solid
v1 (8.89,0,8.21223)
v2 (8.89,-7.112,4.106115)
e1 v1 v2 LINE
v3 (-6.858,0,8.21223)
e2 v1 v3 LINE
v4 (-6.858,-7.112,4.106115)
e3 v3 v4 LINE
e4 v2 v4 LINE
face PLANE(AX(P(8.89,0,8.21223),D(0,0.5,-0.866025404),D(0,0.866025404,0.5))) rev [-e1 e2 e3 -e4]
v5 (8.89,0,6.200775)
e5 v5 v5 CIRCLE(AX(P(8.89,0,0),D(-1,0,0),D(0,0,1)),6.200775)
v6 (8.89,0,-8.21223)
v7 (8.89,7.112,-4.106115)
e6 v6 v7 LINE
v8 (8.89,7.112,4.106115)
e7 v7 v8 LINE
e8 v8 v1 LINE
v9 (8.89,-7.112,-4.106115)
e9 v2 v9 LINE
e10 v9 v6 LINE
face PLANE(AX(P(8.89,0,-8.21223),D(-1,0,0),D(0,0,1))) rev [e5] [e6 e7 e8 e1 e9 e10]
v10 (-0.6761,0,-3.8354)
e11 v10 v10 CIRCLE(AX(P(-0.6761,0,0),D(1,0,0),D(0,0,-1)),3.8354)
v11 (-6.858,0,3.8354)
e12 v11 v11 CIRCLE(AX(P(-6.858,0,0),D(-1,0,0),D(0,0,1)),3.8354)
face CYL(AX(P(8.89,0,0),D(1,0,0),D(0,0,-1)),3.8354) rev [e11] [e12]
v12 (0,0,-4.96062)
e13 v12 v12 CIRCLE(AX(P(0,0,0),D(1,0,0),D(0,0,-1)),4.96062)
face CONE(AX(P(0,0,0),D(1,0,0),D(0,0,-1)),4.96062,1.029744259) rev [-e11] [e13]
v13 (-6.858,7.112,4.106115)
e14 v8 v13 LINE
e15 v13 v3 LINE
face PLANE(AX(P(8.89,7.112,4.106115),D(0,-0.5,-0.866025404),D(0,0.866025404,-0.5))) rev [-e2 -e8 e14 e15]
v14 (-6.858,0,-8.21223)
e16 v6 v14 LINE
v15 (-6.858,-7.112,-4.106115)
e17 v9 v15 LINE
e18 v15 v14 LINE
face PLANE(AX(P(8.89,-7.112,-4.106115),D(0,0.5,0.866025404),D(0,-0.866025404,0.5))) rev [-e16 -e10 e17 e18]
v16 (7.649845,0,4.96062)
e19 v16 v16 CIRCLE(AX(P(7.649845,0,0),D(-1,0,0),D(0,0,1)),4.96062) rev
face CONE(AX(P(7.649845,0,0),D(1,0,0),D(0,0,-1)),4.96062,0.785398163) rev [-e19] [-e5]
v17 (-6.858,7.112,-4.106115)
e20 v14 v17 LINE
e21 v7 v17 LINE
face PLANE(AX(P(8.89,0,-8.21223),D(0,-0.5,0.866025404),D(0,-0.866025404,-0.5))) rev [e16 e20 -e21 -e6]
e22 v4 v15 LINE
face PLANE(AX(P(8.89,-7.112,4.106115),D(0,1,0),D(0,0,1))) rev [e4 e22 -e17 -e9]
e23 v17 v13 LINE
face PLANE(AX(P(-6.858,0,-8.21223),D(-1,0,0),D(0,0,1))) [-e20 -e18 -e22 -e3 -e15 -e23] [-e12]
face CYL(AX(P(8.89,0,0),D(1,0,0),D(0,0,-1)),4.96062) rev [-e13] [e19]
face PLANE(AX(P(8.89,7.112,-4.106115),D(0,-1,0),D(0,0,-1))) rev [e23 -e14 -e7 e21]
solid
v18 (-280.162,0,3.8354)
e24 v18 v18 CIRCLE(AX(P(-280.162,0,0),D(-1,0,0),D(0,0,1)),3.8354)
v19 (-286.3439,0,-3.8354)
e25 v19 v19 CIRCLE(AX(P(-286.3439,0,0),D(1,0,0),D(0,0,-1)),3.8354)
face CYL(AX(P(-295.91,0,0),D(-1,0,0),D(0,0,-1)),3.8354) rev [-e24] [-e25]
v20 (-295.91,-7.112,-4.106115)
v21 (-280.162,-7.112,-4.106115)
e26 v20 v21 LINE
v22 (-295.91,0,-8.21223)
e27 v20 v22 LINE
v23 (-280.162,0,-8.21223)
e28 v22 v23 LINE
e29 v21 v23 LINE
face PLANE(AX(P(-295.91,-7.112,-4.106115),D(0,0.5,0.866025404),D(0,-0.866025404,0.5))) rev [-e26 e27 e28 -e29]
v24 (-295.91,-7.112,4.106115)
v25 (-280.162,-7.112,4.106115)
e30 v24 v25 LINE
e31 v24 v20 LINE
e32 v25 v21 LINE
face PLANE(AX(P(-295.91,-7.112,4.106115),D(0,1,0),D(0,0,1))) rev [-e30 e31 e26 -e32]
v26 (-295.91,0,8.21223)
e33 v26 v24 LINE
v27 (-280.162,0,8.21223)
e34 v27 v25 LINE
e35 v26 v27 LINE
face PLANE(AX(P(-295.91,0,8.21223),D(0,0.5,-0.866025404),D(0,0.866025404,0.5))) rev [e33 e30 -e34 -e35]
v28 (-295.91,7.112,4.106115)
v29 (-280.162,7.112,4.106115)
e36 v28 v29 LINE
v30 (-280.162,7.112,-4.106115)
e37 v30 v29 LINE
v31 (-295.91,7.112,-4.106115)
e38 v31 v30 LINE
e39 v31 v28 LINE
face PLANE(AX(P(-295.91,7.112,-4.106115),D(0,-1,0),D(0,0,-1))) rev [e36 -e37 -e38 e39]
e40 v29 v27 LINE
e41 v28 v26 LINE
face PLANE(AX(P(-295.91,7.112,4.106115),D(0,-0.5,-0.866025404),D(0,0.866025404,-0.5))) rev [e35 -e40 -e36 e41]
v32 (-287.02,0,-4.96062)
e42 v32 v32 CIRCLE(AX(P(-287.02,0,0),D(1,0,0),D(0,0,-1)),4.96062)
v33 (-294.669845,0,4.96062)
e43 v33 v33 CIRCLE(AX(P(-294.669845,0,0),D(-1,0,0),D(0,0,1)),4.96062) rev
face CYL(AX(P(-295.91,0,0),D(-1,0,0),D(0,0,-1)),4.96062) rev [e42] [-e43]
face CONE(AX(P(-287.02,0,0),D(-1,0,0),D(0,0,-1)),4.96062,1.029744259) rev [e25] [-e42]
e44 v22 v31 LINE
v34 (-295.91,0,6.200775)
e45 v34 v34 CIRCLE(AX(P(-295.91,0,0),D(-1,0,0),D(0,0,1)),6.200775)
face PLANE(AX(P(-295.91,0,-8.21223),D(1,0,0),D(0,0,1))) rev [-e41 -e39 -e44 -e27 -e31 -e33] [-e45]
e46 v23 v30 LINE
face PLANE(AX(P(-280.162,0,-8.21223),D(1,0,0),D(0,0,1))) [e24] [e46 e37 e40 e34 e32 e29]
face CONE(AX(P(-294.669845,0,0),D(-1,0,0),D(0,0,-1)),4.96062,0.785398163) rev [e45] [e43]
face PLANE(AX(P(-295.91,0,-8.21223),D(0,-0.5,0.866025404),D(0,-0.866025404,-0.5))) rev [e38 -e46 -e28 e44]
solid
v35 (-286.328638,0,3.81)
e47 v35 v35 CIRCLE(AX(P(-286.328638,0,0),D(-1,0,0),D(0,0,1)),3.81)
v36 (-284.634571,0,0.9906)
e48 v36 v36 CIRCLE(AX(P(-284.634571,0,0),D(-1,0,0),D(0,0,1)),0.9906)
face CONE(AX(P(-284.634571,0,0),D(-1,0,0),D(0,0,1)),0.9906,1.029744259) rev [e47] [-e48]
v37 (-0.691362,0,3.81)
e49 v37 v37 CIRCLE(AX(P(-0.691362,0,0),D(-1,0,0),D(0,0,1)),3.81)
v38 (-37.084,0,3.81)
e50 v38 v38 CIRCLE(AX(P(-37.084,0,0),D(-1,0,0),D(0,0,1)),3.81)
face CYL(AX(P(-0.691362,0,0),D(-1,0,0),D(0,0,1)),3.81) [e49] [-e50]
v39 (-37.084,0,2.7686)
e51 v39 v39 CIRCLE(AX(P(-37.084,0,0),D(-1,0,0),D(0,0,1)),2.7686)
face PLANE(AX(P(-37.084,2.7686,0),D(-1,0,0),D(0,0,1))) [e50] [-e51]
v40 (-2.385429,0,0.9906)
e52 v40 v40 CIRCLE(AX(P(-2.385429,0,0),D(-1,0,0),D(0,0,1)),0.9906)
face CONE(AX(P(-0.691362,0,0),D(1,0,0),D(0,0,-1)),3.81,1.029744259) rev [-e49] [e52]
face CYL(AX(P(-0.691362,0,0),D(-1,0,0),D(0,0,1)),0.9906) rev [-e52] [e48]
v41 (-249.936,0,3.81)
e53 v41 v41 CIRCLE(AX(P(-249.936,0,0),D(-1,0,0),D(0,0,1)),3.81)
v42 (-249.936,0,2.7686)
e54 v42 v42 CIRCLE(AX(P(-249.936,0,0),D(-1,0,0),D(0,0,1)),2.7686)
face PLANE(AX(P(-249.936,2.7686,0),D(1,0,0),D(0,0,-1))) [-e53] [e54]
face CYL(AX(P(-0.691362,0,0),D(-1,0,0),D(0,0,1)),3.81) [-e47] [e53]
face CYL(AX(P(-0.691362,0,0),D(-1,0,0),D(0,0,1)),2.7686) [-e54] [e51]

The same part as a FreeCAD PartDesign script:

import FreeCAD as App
import Part
import Sketcher
Q = App.Units.Quantity


def edges_at(feature, points):
    """Names of the edges that pass closest to the given points."""
    edges = feature.Shape.Edges
    near = lambda p: min(range(len(edges)), key=lambda i: edges[i].distToShape(Part.Vertex(*p))[0])
    return sorted({f"Edge{near(p) + 1}" for p in points})


def add_polygon(sketch, points):
    """Adds a closed chain of lines whose ends are joined by coincident constraints."""
    first, n = sketch.GeometryCount, len(points)
    for a, b in zip(points, points[1:] + points[:1]):
        sketch.addGeometry(Part.LineSegment(App.Vector(*a, 0), App.Vector(*b, 0)), False)
    for i in range(n):
        sketch.addConstraint(Sketcher.Constraint("Coincident", first + i, 2, first + (i + 1) % n, 1))

doc = App.newDocument("Part")
body = doc.addObject("PartDesign::Body", "Body")

# Sketch on YZ plane
sketch1 = doc.addObject("Sketcher::SketchObject", "Sketch")
body.addObject(sketch1)
sketch1.AttachmentSupport = (doc.YZ_Plane, [""])
sketch1.MapMode = "FlatFace"
sketch1.AttachmentOffset = App.Placement(App.Vector(0, 0, -0.27 * 25.4), App.Rotation())
add_polygon(sketch1, [(7, -4), (7, 4), (0, 8), (-7, 4), (-7, -4), (0, -8)])  # lines 0-5
sketch1.addConstraint(Sketcher.Constraint("Vertical", 0))
sketch1.addConstraint(Sketcher.Constraint("Vertical", 3))
sketch1.addConstraint(Sketcher.Constraint("Symmetric", 0, 2, 3, 2, -1, 1))
sketch1.addConstraint(Sketcher.Constraint("Symmetric", 1, 2, 4, 2, -1, 1))
sketch1.addConstraint(Sketcher.Constraint("PointOnObject", 1, 2, -2))
sketch1.addConstraint(Sketcher.Constraint("Parallel", 2, 5))
sketch1.addConstraint(Sketcher.Constraint("Horizontal", 0, 2, 2, 2))
sketch1.addConstraint(Sketcher.Constraint("Angle", 1, Q("150 deg")))
sketch1.addConstraint(Sketcher.Constraint("DistanceX", -1, 1, 0, 2, Q("0.28 in")))
sketch1.addConstraint(Sketcher.Constraint("DistanceY", 0, 1, 0, 2, 8.21223))
pad1 = doc.addObject("PartDesign::Pad", "Pad")
body.addObject(pad1)
pad1.Profile = sketch1
pad1.Length = Q("0.62 in")

# Sketch on XZ plane
sketch2 = doc.addObject("Sketcher::SketchObject", "Sketch001")
body.addObject(sketch2)
sketch2.AttachmentSupport = (doc.XZ_Plane, [""])
sketch2.MapMode = "FlatFace"
add_polygon(sketch2, [(-6.9, 0), (8.9, 0), (8.9, -5), (0, -5), (-0.7, -3.8), (-6.9, -3.8)])  # lines 0-5
sketch2.addConstraint(Sketcher.Constraint("Horizontal", 0))
sketch2.addConstraint(Sketcher.Constraint("Vertical", 1))
sketch2.addConstraint(Sketcher.Constraint("Horizontal", 2))
sketch2.addConstraint(Sketcher.Constraint("Horizontal", 4))
sketch2.addConstraint(Sketcher.Constraint("Vertical", 5))
sketch2.addConstraint(Sketcher.Constraint("PointOnObject", 0, 2, -1))
sketch2.addConstraint(Sketcher.Constraint("PointOnObject", 2, 2, -2))
sketch2.addConstraint(Sketcher.Constraint("Angle", 3, Q("121 deg")))
sketch2.addConstraint(Sketcher.Constraint("DistanceX", 0, 1, 0, 2, Q("0.62 in")))
sketch2.addConstraint(Sketcher.Constraint("DistanceX", 2, 2, 2, 1, Q("0.35 in")))
sketch2.addConstraint(Sketcher.Constraint("DistanceY", 5, 1, 5, 2, Q("0.151 in")))
sketch2.addConstraint(Sketcher.Constraint("DistanceY", 1, 2, 1, 1, Q("0.1953 in")))
groove = doc.addObject("PartDesign::Groove", "Groove")
body.addObject(groove)
groove.Profile = sketch2
groove.ReferenceAxis = (sketch2, ["H_Axis"])
groove.Angle = 360
doc.recompute()

chamfer = doc.addObject("PartDesign::Chamfer", "Chamfer")
body.addObject(chamfer)
chamfer.Base = (groove, edges_at(groove, [(8.89, 0, 4.961)]))
chamfer.Size = 1.240155
body2 = doc.addObject("PartDesign::Body", "Body001")

# Sketch on XY plane
sketch3 = doc.addObject("Sketcher::SketchObject", "Sketch002")
body2.addObject(sketch3)
sketch3.AttachmentSupport = (doc.getObject("XY_Plane001"), [""])
sketch3.MapMode = "FlatFace"
add_polygon(sketch3, [(-0.7, 3.8), (-2.4, 1), (-284.6, 1), (-286.3, 3.8), (-249.9, 3.8), (-249.9, 2.8), (-37.1, 2.8), (-37.1, 3.8)])  # lines 0-7
sketch3.addConstraint(Sketcher.Constraint("Horizontal", 1))
sketch3.addConstraint(Sketcher.Constraint("Horizontal", 3))
sketch3.addConstraint(Sketcher.Constraint("Vertical", 4))
sketch3.addConstraint(Sketcher.Constraint("Horizontal", 5))
sketch3.addConstraint(Sketcher.Constraint("Vertical", 6))
sketch3.addConstraint(Sketcher.Constraint("Horizontal", 7))
sketch3.addConstraint(Sketcher.Constraint("Horizontal", 3, 2, 6, 2))
sketch3.addConstraint(Sketcher.Constraint("Equal", 3, 7))
sketch3.addConstraint(Sketcher.Constraint("Equal", 0, 2))
sketch3.addConstraint(Sketcher.Constraint("Angle", 0, Q("-121 deg")))
sketch3.addConstraint(Sketcher.Constraint("DistanceX", 5, 1, 5, 2, Q("8.38 in")))
sketch3.addConstraint(Sketcher.Constraint("DistanceY", 4, 2, 4, 1, Q("0.041 in")))
sketch3.addConstraint(Sketcher.Constraint("DistanceY", -1, 1, 2, 2, Q("0.15 in")))
sketch3.addConstraint(Sketcher.Constraint("DistanceX", 3, 2, -1, 1, Q("9.84 in")))
sketch3.addConstraint(Sketcher.Constraint("DistanceY", 1, 2, 4, 2, Q("0.07 in")))
sketch3.addConstraint(Sketcher.Constraint("DistanceX", 1, 2, 1, 1, 282.249143))
revolution = doc.addObject("PartDesign::Revolution", "Revolution")
body2.addObject(revolution)
revolution.Profile = sketch3
revolution.ReferenceAxis = (sketch3, ["H_Axis"])
revolution.Angle = 360
body3 = doc.addObject("PartDesign::Body", "Body002")
doc.recompute()

mirroring = doc.addObject("Part::Mirroring", "Mirroring")
mirroring.Source = body
mirroring.Base = App.Vector(-143.51, 0, 0)
mirroring.Normal = App.Vector(1, 0, 0)
body3.BaseFeature = mirroring
doc.recompute()
mirroring.Visibility = False

doc.recompute()
